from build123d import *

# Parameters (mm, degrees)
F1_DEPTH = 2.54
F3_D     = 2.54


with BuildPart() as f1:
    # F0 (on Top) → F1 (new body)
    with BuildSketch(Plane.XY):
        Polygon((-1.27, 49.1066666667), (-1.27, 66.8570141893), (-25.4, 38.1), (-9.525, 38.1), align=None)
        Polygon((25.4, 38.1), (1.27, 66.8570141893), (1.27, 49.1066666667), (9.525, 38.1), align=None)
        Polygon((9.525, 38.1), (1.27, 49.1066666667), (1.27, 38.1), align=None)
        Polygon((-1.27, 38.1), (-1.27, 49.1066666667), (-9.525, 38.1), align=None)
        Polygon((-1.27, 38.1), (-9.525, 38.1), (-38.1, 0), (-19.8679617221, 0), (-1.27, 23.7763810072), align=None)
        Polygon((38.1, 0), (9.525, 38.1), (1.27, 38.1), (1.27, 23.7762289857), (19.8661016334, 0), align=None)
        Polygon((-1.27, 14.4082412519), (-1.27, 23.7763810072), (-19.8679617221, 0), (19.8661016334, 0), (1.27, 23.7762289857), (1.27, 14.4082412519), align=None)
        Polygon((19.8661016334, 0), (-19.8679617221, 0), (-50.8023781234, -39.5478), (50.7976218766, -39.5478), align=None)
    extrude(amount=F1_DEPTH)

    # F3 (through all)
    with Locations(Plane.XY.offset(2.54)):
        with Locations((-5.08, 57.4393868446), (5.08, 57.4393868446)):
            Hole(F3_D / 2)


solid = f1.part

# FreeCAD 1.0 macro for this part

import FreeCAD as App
import Part
import Sketcher

V = App.Vector
Q = App.Units.Quantity


def add_polygon(sketch, points):
    """Adds a closed chain of lines whose ends are joined by coincident constraints."""
    first, n = sketch.GeometryCount, len(points)
    for a, b in zip(points, points[1:] + points[:1]):
        sketch.addGeometry(Part.LineSegment(App.Vector(*a, 0), App.Vector(*b, 0)), False)
    for i in range(n):
        sketch.addConstraint(Sketcher.Constraint("Coincident", first + i, 2, first + (i + 1) % n, 1))

doc = App.newDocument("Part")
body = doc.addObject("PartDesign::Body", "Body")

sketch1 = body.newObject("Sketcher::SketchObject", "Sketch")
sketch1.AttachmentSupport = (doc.getObject("XY_Plane"), [""])
sketch1.MapMode = "FlatFace"
add_polygon(sketch1, [(-1.3, 66.9), (-25.4, 38.1), (-9.5, 38.1), (-38.1, 0), (-19.9, 0), (-50.8, -39.5), (50.8, -39.5), (19.9, 0), (38.1, 0), (9.5, 38.1), (25.4, 38.1), (1.3, 66.9), (1.3, 14.4), (-1.3, 14.4)])
sketch1.addConstraint([
    Sketcher.Constraint("Horizontal", 1),
    Sketcher.Constraint("Horizontal", 3),
    Sketcher.Constraint("Horizontal", 5),
    Sketcher.Constraint("Horizontal", 7),
    Sketcher.Constraint("Horizontal", 9),
    Sketcher.Constraint("Vertical", 11),
    Sketcher.Constraint("Horizontal", 12),
    Sketcher.Constraint("Vertical", 13),
    Sketcher.Constraint("Symmetric", 2, 2, 7, 2, -1, 1),
    Sketcher.Constraint("Symmetric", 1, 2, 8, 2, -2),
    Sketcher.Constraint("Symmetric", 10, 2, 13, 2, -2),
    Sketcher.Constraint("PointOnObject", 2, 2, -1),
    Sketcher.Constraint("Equal", 1, 9),
    Sketcher.Constraint("DistanceX", 5, 1, 5, 2, Q("4 in")),
    Sketcher.Constraint("DistanceX", 12, 2, 12, 1, Q("0.1 in")),
    Sketcher.Constraint("DistanceX", 0, 2, -1, 1, Q("1 in")),
    Sketcher.Constraint("Angle", 0, Q("-130 deg")),
    Sketcher.Constraint("DistanceY", -1, 1, 0, 2, Q("1.5 in")),
    Sketcher.Constraint("DistanceX", 2, 2, -1, 1, Q("1.5 in")),
    Sketcher.Constraint("DistanceX", 1, 1, 1, 2, Q("0.625 in")),
    Sketcher.Constraint("DistanceY", 4, 2, -1, 1, Q("1.557 in")),
    Sketcher.Constraint("DistanceX", 7, 1, 7, 2, 18.233898),
    Sketcher.Constraint("DistanceX", 3, 1, 3, 2, 18.232038),
    Sketcher.Constraint("Distance", 4, 50.209228),
    Sketcher.Constraint("DistanceY", 11, 2, 11, 1, 52.448773),
])
pad1 = body.newObject("PartDesign::Pad", "Pad")
pad1.Profile = sketch1
pad1.Length = Q("0.1 in")

sketch2 = body.newObject("Sketcher::SketchObject", "Sketch001")
sketch2.AttachmentSupport = (doc.getObject("XY_Plane"), [""])
sketch2.MapMode = "FlatFace"
sketch2.AttachmentOffset = App.Placement(V(0, 0, 0.1 * 25.4), App.Rotation())
sketch2.addGeometry([
    Part.Circle(V(-5.1, 57.4, 0), V(0, 0, 1), 1.3),
    Part.Circle(V(5.1, 57.4, 0), V(0, 0, 1), 1.3),
], False)
sketch2.addConstraint([
    Sketcher.Constraint("Equal", 0, 1),
    Sketcher.Constraint("Symmetric", 0, 3, 1, 3, -2),
    Sketcher.Constraint("Diameter", 0, Q("0.1 in")),
    Sketcher.Constraint("DistanceX", 0, 3, -1, 1, Q("0.2 in")),
    Sketcher.Constraint("DistanceY", -1, 1, 0, 3, 57.439387),
])
doc.recompute()
hole = body.newObject("PartDesign::Hole", "Hole")
hole.Profile = sketch2
hole.ThreadType = "None"
hole.Diameter = Q("0.1 in")
hole.DepthType = "ThroughAll"

doc.recompute()
